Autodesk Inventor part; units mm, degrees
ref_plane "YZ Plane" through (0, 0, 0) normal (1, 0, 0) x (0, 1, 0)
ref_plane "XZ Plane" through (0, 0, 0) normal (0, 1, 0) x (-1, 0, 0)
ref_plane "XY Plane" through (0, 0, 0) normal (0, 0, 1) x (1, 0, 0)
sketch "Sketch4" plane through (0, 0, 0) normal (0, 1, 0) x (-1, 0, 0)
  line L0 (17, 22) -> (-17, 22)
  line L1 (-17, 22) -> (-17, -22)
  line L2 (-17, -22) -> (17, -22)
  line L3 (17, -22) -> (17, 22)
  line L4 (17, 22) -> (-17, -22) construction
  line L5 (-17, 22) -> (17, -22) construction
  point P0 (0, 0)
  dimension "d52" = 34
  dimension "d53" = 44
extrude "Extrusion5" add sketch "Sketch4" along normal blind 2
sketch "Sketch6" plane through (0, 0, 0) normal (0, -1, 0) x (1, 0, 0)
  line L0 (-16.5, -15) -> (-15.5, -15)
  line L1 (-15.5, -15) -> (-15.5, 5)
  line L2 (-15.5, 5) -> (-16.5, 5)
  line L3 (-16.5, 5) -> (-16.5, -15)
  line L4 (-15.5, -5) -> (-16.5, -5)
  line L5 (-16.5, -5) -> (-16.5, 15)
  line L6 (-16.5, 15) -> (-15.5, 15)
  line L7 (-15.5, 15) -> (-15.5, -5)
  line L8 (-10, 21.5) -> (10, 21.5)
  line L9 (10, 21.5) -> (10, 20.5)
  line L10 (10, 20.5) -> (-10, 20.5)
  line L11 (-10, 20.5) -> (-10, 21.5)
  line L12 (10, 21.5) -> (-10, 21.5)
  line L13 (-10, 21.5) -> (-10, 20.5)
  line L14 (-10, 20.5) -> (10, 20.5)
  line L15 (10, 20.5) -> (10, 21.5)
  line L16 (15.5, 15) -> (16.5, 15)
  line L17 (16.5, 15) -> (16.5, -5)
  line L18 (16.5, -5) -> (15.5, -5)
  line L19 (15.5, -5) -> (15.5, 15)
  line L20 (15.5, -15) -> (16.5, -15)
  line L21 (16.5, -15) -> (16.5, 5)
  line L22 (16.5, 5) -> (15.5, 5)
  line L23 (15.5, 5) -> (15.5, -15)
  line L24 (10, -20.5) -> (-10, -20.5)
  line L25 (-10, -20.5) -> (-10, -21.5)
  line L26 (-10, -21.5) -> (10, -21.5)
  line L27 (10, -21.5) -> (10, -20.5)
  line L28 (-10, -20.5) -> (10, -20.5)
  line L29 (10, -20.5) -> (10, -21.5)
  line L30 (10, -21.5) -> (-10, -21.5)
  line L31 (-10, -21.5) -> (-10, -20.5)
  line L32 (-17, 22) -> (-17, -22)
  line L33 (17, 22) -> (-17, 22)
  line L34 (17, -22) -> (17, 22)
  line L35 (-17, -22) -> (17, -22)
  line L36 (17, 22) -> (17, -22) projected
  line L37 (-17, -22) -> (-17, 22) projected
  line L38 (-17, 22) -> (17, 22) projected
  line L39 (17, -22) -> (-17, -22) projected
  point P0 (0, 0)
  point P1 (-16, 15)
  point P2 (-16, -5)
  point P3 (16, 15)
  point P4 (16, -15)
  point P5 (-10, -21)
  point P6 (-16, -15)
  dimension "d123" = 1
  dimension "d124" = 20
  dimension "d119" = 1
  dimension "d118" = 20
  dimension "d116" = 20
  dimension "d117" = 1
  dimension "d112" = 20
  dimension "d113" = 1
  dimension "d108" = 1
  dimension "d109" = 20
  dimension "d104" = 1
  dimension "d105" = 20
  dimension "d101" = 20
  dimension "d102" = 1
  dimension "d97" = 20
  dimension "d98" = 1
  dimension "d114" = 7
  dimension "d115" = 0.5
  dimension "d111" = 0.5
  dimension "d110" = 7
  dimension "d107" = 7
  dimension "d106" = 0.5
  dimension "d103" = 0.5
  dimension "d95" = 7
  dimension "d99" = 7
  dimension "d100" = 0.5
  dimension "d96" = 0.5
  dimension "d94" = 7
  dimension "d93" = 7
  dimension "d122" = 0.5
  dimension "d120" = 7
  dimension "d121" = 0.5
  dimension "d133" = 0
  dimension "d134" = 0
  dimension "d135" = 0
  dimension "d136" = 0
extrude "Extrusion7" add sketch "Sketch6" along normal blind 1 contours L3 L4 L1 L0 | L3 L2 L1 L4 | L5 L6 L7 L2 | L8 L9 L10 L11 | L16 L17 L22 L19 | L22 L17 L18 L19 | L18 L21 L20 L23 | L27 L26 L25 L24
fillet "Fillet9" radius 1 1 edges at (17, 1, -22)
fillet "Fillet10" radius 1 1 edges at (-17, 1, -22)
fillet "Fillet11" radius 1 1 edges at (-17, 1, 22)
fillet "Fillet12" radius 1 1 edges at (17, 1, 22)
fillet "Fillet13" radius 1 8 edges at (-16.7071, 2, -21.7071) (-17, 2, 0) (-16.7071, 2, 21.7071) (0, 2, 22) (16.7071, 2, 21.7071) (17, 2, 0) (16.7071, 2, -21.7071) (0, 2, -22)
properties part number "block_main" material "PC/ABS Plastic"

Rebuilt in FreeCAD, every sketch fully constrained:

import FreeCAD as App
import Part
import Sketcher
from FreeCAD import Vector


def edges_at(feature, points):
    """Names of the edges that pass closest to the given points."""
    edges = feature.Shape.Edges
    near = lambda p: min(range(len(edges)), key=lambda i: edges[i].distToShape(Part.Vertex(*p))[0])
    return sorted({f"Edge{near(p) + 1}" for p in points})

doc = App.newDocument("Part")
body = doc.addObject("PartDesign::Body", "Body")

# Sketch on XZ plane
sketch1 = body.newObject("Sketcher::SketchObject", "Sketch")
sketch1.AttachmentSupport = (doc.getObject("XZ_Plane"), [""])
sketch1.MapMode = "FlatFace"
sketch1.addGeometry(Part.LineSegment(Vector(-17, -22, 0), Vector(-17, 22, 0)), False)
sketch1.addGeometry(Part.LineSegment(Vector(-17, 22, 0), Vector(17, 22, 0)), False)
sketch1.addGeometry(Part.LineSegment(Vector(17, 22, 0), Vector(17, -22, 0)), False)
sketch1.addGeometry(Part.LineSegment(Vector(17, -22, 0), Vector(-17, -22, 0)), False)
sketch1.addConstraint(Sketcher.Constraint("Coincident", 0, 2, 1, 1))
sketch1.addConstraint(Sketcher.Constraint("Coincident", 1, 2, 2, 1))
sketch1.addConstraint(Sketcher.Constraint("Coincident", 2, 2, 3, 1))
sketch1.addConstraint(Sketcher.Constraint("Coincident", 3, 2, 0, 1))
sketch1.addConstraint(Sketcher.Constraint("Vertical", 0))
sketch1.addConstraint(Sketcher.Constraint("Horizontal", 1))
sketch1.addConstraint(Sketcher.Constraint("Vertical", 2))
sketch1.addConstraint(Sketcher.Constraint("Horizontal", 3))
sketch1.addConstraint(Sketcher.Constraint("Symmetric", 0, 2, 2, 2, -1, 1))
sketch1.addConstraint(Sketcher.Constraint("DistanceX", 1, 1, 1, 2, 34.0))
sketch1.addConstraint(Sketcher.Constraint("DistanceY", 0, 1, 0, 2, 44.0))
pad1 = body.newObject("PartDesign::Pad", "Pad")
pad1.Profile = sketch1
pad1.Length = 2
pad1.Reversed = True

# Sketch on XZ plane
sketch2 = body.newObject("Sketcher::SketchObject", "Sketch001")
sketch2.AttachmentSupport = (doc.getObject("XZ_Plane"), [""])
sketch2.MapMode = "FlatFace"
sketch2.addGeometry(Part.LineSegment(Vector(-16.5, -15, 0), Vector(-15.5, -15, 0)), False)
sketch2.addGeometry(Part.LineSegment(Vector(-15.5, -15, 0), Vector(-15.5, 15, 0)), False)
sketch2.addGeometry(Part.LineSegment(Vector(-15.5, 15, 0), Vector(-16.5, 15, 0)), False)
sketch2.addGeometry(Part.LineSegment(Vector(-16.5, 15, 0), Vector(-16.5, -15, 0)), False)
sketch2.addGeometry(Part.LineSegment(Vector(10, 21.5, 0), Vector(-10, 21.5, 0)), False)
sketch2.addGeometry(Part.LineSegment(Vector(-10, 21.5, 0), Vector(-10, 20.5, 0)), False)
sketch2.addGeometry(Part.LineSegment(Vector(-10, 20.5, 0), Vector(10, 20.5, 0)), False)
sketch2.addGeometry(Part.LineSegment(Vector(10, 20.5, 0), Vector(10, 21.5, 0)), False)
sketch2.addGeometry(Part.LineSegment(Vector(16.5, 15, 0), Vector(15.5, 15, 0)), False)
sketch2.addGeometry(Part.LineSegment(Vector(15.5, 15, 0), Vector(15.5, -15, 0)), False)
sketch2.addGeometry(Part.LineSegment(Vector(15.5, -15, 0), Vector(16.5, -15, 0)), False)
sketch2.addGeometry(Part.LineSegment(Vector(16.5, -15, 0), Vector(16.5, 15, 0)), False)
sketch2.addGeometry(Part.LineSegment(Vector(10, -21.5, 0), Vector(10, -20.5, 0)), False)
sketch2.addGeometry(Part.LineSegment(Vector(10, -20.5, 0), Vector(-10, -20.5, 0)), False)
sketch2.addGeometry(Part.LineSegment(Vector(-10, -20.5, 0), Vector(-10, -21.5, 0)), False)
sketch2.addGeometry(Part.LineSegment(Vector(-10, -21.5, 0), Vector(10, -21.5, 0)), False)
sketch2.addConstraint(Sketcher.Constraint("Coincident", 0, 2, 1, 1))
sketch2.addConstraint(Sketcher.Constraint("Coincident", 1, 2, 2, 1))
sketch2.addConstraint(Sketcher.Constraint("Coincident", 2, 2, 3, 1))
sketch2.addConstraint(Sketcher.Constraint("Coincident", 3, 2, 0, 1))
sketch2.addConstraint(Sketcher.Constraint("Coincident", 4, 2, 5, 1))
sketch2.addConstraint(Sketcher.Constraint("Coincident", 5, 2, 6, 1))
sketch2.addConstraint(Sketcher.Constraint("Coincident", 6, 2, 7, 1))
sketch2.addConstraint(Sketcher.Constraint("Coincident", 7, 2, 4, 1))
sketch2.addConstraint(Sketcher.Constraint("Coincident", 8, 2, 9, 1))
sketch2.addConstraint(Sketcher.Constraint("Coincident", 9, 2, 10, 1))
sketch2.addConstraint(Sketcher.Constraint("Coincident", 10, 2, 11, 1))
sketch2.addConstraint(Sketcher.Constraint("Coincident", 11, 2, 8, 1))
sketch2.addConstraint(Sketcher.Constraint("Coincident", 12, 2, 13, 1))
sketch2.addConstraint(Sketcher.Constraint("Coincident", 13, 2, 14, 1))
sketch2.addConstraint(Sketcher.Constraint("Coincident", 14, 2, 15, 1))
sketch2.addConstraint(Sketcher.Constraint("Coincident", 15, 2, 12, 1))
sketch2.addConstraint(Sketcher.Constraint("Horizontal", 0))
sketch2.addConstraint(Sketcher.Constraint("Vertical", 1))
sketch2.addConstraint(Sketcher.Constraint("Horizontal", 2))
sketch2.addConstraint(Sketcher.Constraint("Vertical", 3))
sketch2.addConstraint(Sketcher.Constraint("Horizontal", 4))
sketch2.addConstraint(Sketcher.Constraint("Vertical", 5))
sketch2.addConstraint(Sketcher.Constraint("Horizontal", 6))
sketch2.addConstraint(Sketcher.Constraint("Vertical", 7))
sketch2.addConstraint(Sketcher.Constraint("Horizontal", 8))
sketch2.addConstraint(Sketcher.Constraint("Vertical", 9))
sketch2.addConstraint(Sketcher.Constraint("Horizontal", 10))
sketch2.addConstraint(Sketcher.Constraint("Vertical", 11))
sketch2.addConstraint(Sketcher.Constraint("Vertical", 12))
sketch2.addConstraint(Sketcher.Constraint("Horizontal", 13))
sketch2.addConstraint(Sketcher.Constraint("Vertical", 14))
sketch2.addConstraint(Sketcher.Constraint("Horizontal", 15))
sketch2.addConstraint(Sketcher.Constraint("Symmetric", 0, 2, 8, 2, -1, 1))
sketch2.addConstraint(Sketcher.Constraint("Symmetric", 2, 2, 10, 2, -1, 1))
sketch2.addConstraint(Sketcher.Constraint("Symmetric", 5, 2, 12, 2, -1, 1))
sketch2.addConstraint(Sketcher.Constraint("Symmetric", 7, 2, 14, 2, -1, 1))
sketch2.addConstraint(Sketcher.Constraint("Horizontal", 2, 2, 8, 2))
sketch2.addConstraint(Sketcher.Constraint("Vertical", 7, 2, 12, 2))
sketch2.addConstraint(Sketcher.Constraint("Equal", 10, 5))
sketch2.addConstraint(Sketcher.Constraint("DistanceX", 0, 1, 0, 2, 1.0))
sketch2.addConstraint(Sketcher.Constraint("DistanceX", 4, 2, 4, 1, 20.0))
sketch2.addConstraint(Sketcher.Constraint("DistanceY", 1, 1, 1, 2, 30.0))
sketch2.addConstraint(Sketcher.Constraint("DistanceX", 1, 2, 8, 2, 31.0))
sketch2.addConstraint(Sketcher.Constraint("DistanceY", -1, 1, 4, 2, 21.5))
pad2 = body.newObject("PartDesign::Pad", "Pad001")
pad2.Profile = sketch2
pad2.Length = 1
doc.recompute()

fillet = body.newObject("PartDesign::Fillet", "Fillet")
fillet.Base = (pad2, edges_at(pad2, [(17, 1, -22)]))
fillet.Radius = 1
doc.recompute()

fillet2 = body.newObject("PartDesign::Fillet", "Fillet001")
fillet2.Base = (fillet, edges_at(fillet, [(-17, 1, -22)]))
fillet2.Radius = 1
doc.recompute()

fillet3 = body.newObject("PartDesign::Fillet", "Fillet002")
fillet3.Base = (fillet2, edges_at(fillet2, [(-17, 1, 22)]))
fillet3.Radius = 1
doc.recompute()

fillet4 = body.newObject("PartDesign::Fillet", "Fillet003")
fillet4.Base = (fillet3, edges_at(fillet3, [(17, 1, 22)]))
fillet4.Radius = 1
doc.recompute()

fillet5 = body.newObject("PartDesign::Fillet", "Fillet004")
fillet5.Base = (fillet4, edges_at(fillet4, [
    (-16.707, 2, -21.707),
    (-17, 2, 0),
    (-16.707, 2, 21.707),
    (0, 2, 22),
    (16.707, 2, 21.707),
    (17, 2, 0),
    (16.707, 2, -21.707),
    (0, 2, -22),
]))
fillet5.Radius = 1

doc.recompute()
